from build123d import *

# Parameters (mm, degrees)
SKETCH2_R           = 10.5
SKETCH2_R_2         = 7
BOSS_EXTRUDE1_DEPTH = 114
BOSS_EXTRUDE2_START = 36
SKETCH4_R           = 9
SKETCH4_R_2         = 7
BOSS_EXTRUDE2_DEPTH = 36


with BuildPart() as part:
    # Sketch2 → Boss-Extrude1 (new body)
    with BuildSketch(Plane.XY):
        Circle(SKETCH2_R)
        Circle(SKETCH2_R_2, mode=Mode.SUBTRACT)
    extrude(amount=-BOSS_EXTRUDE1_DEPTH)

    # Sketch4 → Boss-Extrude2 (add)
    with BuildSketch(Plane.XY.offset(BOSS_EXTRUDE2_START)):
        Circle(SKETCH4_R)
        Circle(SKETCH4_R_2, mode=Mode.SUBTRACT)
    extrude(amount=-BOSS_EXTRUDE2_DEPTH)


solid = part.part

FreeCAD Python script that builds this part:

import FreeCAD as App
import Part
import Sketcher

doc = App.newDocument("Part")
params = doc.addObject("Spreadsheet::Sheet", "Params")
for row, (alias, value) in enumerate([
    ("sketch1_diameter", "21 mm"),
    ("sketch1_diameter2", "14 mm"),
    ("pad1_length", "114 mm"),
    ("sketch2_diameter", "18 mm"),
    ("sketch2_diameter2", "14 mm"),
    ("pad2_length", "36 mm"),
], start=1):
    params.set(f"A{row}", alias)
    params.set(f"B{row}", "=" + value)
    params.setAlias(f"B{row}", alias)

body = doc.addObject("PartDesign::Body", "Body")

sketch1 = doc.addObject("Sketcher::SketchObject", "Sketch")
body.addObject(sketch1)
sketch1.AttachmentSupport = (doc.XY_Plane, [""])
sketch1.MapMode = "FlatFace"
sketch1.addGeometry([
    Part.Circle(App.Vector(0, 0, 0), App.Vector(0, 0, 1), 10),
    Part.Circle(App.Vector(0, 0, 0), App.Vector(0, 0, 1), 7),
], False)
sketch1.addConstraint([
    Sketcher.Constraint("Coincident", 0, 3, -1, 1),
    Sketcher.Constraint("Coincident", 1, 3, -1, 1),
    Sketcher.Constraint("Diameter", 0, 21.0),
    Sketcher.Constraint("Diameter", 1, 14.0),
])
sketch1.setExpression("Constraints[2]", "Params.sketch1_diameter")
sketch1.setExpression("Constraints[3]", "Params.sketch1_diameter2")
pad1 = doc.addObject("PartDesign::Pad", "Pad")
body.addObject(pad1)
pad1.Profile = sketch1
pad1.setExpression("Length", "Params.pad1_length")
pad1.Reversed = True

sketch2 = doc.addObject("Sketcher::SketchObject", "Sketch001")
body.addObject(sketch2)
sketch2.AttachmentSupport = (doc.XY_Plane, [""])
sketch2.MapMode = "FlatFace"
sketch2.AttachmentOffset = App.Placement(App.Vector(0, 0, 36), App.Rotation())
sketch2.addGeometry([
    Part.Circle(App.Vector(0, 0, 0), App.Vector(0, 0, 1), 9),
    Part.Circle(App.Vector(0, 0, 0), App.Vector(0, 0, 1), 7),
], False)
sketch2.addConstraint([
    Sketcher.Constraint("Coincident", 0, 3, -1, 1),
    Sketcher.Constraint("Coincident", 1, 3, -1, 1),
    Sketcher.Constraint("Diameter", 0, 18.0),
    Sketcher.Constraint("Diameter", 1, 14.0),
])
sketch2.setExpression("Constraints[2]", "Params.sketch2_diameter")
sketch2.setExpression("Constraints[3]", "Params.sketch2_diameter2")
pad2 = doc.addObject("PartDesign::Pad", "Pad001")
body.addObject(pad2)
pad2.Profile = sketch2
pad2.setExpression("Length", "Params.pad2_length")
pad2.Reversed = True

doc.recompute()
